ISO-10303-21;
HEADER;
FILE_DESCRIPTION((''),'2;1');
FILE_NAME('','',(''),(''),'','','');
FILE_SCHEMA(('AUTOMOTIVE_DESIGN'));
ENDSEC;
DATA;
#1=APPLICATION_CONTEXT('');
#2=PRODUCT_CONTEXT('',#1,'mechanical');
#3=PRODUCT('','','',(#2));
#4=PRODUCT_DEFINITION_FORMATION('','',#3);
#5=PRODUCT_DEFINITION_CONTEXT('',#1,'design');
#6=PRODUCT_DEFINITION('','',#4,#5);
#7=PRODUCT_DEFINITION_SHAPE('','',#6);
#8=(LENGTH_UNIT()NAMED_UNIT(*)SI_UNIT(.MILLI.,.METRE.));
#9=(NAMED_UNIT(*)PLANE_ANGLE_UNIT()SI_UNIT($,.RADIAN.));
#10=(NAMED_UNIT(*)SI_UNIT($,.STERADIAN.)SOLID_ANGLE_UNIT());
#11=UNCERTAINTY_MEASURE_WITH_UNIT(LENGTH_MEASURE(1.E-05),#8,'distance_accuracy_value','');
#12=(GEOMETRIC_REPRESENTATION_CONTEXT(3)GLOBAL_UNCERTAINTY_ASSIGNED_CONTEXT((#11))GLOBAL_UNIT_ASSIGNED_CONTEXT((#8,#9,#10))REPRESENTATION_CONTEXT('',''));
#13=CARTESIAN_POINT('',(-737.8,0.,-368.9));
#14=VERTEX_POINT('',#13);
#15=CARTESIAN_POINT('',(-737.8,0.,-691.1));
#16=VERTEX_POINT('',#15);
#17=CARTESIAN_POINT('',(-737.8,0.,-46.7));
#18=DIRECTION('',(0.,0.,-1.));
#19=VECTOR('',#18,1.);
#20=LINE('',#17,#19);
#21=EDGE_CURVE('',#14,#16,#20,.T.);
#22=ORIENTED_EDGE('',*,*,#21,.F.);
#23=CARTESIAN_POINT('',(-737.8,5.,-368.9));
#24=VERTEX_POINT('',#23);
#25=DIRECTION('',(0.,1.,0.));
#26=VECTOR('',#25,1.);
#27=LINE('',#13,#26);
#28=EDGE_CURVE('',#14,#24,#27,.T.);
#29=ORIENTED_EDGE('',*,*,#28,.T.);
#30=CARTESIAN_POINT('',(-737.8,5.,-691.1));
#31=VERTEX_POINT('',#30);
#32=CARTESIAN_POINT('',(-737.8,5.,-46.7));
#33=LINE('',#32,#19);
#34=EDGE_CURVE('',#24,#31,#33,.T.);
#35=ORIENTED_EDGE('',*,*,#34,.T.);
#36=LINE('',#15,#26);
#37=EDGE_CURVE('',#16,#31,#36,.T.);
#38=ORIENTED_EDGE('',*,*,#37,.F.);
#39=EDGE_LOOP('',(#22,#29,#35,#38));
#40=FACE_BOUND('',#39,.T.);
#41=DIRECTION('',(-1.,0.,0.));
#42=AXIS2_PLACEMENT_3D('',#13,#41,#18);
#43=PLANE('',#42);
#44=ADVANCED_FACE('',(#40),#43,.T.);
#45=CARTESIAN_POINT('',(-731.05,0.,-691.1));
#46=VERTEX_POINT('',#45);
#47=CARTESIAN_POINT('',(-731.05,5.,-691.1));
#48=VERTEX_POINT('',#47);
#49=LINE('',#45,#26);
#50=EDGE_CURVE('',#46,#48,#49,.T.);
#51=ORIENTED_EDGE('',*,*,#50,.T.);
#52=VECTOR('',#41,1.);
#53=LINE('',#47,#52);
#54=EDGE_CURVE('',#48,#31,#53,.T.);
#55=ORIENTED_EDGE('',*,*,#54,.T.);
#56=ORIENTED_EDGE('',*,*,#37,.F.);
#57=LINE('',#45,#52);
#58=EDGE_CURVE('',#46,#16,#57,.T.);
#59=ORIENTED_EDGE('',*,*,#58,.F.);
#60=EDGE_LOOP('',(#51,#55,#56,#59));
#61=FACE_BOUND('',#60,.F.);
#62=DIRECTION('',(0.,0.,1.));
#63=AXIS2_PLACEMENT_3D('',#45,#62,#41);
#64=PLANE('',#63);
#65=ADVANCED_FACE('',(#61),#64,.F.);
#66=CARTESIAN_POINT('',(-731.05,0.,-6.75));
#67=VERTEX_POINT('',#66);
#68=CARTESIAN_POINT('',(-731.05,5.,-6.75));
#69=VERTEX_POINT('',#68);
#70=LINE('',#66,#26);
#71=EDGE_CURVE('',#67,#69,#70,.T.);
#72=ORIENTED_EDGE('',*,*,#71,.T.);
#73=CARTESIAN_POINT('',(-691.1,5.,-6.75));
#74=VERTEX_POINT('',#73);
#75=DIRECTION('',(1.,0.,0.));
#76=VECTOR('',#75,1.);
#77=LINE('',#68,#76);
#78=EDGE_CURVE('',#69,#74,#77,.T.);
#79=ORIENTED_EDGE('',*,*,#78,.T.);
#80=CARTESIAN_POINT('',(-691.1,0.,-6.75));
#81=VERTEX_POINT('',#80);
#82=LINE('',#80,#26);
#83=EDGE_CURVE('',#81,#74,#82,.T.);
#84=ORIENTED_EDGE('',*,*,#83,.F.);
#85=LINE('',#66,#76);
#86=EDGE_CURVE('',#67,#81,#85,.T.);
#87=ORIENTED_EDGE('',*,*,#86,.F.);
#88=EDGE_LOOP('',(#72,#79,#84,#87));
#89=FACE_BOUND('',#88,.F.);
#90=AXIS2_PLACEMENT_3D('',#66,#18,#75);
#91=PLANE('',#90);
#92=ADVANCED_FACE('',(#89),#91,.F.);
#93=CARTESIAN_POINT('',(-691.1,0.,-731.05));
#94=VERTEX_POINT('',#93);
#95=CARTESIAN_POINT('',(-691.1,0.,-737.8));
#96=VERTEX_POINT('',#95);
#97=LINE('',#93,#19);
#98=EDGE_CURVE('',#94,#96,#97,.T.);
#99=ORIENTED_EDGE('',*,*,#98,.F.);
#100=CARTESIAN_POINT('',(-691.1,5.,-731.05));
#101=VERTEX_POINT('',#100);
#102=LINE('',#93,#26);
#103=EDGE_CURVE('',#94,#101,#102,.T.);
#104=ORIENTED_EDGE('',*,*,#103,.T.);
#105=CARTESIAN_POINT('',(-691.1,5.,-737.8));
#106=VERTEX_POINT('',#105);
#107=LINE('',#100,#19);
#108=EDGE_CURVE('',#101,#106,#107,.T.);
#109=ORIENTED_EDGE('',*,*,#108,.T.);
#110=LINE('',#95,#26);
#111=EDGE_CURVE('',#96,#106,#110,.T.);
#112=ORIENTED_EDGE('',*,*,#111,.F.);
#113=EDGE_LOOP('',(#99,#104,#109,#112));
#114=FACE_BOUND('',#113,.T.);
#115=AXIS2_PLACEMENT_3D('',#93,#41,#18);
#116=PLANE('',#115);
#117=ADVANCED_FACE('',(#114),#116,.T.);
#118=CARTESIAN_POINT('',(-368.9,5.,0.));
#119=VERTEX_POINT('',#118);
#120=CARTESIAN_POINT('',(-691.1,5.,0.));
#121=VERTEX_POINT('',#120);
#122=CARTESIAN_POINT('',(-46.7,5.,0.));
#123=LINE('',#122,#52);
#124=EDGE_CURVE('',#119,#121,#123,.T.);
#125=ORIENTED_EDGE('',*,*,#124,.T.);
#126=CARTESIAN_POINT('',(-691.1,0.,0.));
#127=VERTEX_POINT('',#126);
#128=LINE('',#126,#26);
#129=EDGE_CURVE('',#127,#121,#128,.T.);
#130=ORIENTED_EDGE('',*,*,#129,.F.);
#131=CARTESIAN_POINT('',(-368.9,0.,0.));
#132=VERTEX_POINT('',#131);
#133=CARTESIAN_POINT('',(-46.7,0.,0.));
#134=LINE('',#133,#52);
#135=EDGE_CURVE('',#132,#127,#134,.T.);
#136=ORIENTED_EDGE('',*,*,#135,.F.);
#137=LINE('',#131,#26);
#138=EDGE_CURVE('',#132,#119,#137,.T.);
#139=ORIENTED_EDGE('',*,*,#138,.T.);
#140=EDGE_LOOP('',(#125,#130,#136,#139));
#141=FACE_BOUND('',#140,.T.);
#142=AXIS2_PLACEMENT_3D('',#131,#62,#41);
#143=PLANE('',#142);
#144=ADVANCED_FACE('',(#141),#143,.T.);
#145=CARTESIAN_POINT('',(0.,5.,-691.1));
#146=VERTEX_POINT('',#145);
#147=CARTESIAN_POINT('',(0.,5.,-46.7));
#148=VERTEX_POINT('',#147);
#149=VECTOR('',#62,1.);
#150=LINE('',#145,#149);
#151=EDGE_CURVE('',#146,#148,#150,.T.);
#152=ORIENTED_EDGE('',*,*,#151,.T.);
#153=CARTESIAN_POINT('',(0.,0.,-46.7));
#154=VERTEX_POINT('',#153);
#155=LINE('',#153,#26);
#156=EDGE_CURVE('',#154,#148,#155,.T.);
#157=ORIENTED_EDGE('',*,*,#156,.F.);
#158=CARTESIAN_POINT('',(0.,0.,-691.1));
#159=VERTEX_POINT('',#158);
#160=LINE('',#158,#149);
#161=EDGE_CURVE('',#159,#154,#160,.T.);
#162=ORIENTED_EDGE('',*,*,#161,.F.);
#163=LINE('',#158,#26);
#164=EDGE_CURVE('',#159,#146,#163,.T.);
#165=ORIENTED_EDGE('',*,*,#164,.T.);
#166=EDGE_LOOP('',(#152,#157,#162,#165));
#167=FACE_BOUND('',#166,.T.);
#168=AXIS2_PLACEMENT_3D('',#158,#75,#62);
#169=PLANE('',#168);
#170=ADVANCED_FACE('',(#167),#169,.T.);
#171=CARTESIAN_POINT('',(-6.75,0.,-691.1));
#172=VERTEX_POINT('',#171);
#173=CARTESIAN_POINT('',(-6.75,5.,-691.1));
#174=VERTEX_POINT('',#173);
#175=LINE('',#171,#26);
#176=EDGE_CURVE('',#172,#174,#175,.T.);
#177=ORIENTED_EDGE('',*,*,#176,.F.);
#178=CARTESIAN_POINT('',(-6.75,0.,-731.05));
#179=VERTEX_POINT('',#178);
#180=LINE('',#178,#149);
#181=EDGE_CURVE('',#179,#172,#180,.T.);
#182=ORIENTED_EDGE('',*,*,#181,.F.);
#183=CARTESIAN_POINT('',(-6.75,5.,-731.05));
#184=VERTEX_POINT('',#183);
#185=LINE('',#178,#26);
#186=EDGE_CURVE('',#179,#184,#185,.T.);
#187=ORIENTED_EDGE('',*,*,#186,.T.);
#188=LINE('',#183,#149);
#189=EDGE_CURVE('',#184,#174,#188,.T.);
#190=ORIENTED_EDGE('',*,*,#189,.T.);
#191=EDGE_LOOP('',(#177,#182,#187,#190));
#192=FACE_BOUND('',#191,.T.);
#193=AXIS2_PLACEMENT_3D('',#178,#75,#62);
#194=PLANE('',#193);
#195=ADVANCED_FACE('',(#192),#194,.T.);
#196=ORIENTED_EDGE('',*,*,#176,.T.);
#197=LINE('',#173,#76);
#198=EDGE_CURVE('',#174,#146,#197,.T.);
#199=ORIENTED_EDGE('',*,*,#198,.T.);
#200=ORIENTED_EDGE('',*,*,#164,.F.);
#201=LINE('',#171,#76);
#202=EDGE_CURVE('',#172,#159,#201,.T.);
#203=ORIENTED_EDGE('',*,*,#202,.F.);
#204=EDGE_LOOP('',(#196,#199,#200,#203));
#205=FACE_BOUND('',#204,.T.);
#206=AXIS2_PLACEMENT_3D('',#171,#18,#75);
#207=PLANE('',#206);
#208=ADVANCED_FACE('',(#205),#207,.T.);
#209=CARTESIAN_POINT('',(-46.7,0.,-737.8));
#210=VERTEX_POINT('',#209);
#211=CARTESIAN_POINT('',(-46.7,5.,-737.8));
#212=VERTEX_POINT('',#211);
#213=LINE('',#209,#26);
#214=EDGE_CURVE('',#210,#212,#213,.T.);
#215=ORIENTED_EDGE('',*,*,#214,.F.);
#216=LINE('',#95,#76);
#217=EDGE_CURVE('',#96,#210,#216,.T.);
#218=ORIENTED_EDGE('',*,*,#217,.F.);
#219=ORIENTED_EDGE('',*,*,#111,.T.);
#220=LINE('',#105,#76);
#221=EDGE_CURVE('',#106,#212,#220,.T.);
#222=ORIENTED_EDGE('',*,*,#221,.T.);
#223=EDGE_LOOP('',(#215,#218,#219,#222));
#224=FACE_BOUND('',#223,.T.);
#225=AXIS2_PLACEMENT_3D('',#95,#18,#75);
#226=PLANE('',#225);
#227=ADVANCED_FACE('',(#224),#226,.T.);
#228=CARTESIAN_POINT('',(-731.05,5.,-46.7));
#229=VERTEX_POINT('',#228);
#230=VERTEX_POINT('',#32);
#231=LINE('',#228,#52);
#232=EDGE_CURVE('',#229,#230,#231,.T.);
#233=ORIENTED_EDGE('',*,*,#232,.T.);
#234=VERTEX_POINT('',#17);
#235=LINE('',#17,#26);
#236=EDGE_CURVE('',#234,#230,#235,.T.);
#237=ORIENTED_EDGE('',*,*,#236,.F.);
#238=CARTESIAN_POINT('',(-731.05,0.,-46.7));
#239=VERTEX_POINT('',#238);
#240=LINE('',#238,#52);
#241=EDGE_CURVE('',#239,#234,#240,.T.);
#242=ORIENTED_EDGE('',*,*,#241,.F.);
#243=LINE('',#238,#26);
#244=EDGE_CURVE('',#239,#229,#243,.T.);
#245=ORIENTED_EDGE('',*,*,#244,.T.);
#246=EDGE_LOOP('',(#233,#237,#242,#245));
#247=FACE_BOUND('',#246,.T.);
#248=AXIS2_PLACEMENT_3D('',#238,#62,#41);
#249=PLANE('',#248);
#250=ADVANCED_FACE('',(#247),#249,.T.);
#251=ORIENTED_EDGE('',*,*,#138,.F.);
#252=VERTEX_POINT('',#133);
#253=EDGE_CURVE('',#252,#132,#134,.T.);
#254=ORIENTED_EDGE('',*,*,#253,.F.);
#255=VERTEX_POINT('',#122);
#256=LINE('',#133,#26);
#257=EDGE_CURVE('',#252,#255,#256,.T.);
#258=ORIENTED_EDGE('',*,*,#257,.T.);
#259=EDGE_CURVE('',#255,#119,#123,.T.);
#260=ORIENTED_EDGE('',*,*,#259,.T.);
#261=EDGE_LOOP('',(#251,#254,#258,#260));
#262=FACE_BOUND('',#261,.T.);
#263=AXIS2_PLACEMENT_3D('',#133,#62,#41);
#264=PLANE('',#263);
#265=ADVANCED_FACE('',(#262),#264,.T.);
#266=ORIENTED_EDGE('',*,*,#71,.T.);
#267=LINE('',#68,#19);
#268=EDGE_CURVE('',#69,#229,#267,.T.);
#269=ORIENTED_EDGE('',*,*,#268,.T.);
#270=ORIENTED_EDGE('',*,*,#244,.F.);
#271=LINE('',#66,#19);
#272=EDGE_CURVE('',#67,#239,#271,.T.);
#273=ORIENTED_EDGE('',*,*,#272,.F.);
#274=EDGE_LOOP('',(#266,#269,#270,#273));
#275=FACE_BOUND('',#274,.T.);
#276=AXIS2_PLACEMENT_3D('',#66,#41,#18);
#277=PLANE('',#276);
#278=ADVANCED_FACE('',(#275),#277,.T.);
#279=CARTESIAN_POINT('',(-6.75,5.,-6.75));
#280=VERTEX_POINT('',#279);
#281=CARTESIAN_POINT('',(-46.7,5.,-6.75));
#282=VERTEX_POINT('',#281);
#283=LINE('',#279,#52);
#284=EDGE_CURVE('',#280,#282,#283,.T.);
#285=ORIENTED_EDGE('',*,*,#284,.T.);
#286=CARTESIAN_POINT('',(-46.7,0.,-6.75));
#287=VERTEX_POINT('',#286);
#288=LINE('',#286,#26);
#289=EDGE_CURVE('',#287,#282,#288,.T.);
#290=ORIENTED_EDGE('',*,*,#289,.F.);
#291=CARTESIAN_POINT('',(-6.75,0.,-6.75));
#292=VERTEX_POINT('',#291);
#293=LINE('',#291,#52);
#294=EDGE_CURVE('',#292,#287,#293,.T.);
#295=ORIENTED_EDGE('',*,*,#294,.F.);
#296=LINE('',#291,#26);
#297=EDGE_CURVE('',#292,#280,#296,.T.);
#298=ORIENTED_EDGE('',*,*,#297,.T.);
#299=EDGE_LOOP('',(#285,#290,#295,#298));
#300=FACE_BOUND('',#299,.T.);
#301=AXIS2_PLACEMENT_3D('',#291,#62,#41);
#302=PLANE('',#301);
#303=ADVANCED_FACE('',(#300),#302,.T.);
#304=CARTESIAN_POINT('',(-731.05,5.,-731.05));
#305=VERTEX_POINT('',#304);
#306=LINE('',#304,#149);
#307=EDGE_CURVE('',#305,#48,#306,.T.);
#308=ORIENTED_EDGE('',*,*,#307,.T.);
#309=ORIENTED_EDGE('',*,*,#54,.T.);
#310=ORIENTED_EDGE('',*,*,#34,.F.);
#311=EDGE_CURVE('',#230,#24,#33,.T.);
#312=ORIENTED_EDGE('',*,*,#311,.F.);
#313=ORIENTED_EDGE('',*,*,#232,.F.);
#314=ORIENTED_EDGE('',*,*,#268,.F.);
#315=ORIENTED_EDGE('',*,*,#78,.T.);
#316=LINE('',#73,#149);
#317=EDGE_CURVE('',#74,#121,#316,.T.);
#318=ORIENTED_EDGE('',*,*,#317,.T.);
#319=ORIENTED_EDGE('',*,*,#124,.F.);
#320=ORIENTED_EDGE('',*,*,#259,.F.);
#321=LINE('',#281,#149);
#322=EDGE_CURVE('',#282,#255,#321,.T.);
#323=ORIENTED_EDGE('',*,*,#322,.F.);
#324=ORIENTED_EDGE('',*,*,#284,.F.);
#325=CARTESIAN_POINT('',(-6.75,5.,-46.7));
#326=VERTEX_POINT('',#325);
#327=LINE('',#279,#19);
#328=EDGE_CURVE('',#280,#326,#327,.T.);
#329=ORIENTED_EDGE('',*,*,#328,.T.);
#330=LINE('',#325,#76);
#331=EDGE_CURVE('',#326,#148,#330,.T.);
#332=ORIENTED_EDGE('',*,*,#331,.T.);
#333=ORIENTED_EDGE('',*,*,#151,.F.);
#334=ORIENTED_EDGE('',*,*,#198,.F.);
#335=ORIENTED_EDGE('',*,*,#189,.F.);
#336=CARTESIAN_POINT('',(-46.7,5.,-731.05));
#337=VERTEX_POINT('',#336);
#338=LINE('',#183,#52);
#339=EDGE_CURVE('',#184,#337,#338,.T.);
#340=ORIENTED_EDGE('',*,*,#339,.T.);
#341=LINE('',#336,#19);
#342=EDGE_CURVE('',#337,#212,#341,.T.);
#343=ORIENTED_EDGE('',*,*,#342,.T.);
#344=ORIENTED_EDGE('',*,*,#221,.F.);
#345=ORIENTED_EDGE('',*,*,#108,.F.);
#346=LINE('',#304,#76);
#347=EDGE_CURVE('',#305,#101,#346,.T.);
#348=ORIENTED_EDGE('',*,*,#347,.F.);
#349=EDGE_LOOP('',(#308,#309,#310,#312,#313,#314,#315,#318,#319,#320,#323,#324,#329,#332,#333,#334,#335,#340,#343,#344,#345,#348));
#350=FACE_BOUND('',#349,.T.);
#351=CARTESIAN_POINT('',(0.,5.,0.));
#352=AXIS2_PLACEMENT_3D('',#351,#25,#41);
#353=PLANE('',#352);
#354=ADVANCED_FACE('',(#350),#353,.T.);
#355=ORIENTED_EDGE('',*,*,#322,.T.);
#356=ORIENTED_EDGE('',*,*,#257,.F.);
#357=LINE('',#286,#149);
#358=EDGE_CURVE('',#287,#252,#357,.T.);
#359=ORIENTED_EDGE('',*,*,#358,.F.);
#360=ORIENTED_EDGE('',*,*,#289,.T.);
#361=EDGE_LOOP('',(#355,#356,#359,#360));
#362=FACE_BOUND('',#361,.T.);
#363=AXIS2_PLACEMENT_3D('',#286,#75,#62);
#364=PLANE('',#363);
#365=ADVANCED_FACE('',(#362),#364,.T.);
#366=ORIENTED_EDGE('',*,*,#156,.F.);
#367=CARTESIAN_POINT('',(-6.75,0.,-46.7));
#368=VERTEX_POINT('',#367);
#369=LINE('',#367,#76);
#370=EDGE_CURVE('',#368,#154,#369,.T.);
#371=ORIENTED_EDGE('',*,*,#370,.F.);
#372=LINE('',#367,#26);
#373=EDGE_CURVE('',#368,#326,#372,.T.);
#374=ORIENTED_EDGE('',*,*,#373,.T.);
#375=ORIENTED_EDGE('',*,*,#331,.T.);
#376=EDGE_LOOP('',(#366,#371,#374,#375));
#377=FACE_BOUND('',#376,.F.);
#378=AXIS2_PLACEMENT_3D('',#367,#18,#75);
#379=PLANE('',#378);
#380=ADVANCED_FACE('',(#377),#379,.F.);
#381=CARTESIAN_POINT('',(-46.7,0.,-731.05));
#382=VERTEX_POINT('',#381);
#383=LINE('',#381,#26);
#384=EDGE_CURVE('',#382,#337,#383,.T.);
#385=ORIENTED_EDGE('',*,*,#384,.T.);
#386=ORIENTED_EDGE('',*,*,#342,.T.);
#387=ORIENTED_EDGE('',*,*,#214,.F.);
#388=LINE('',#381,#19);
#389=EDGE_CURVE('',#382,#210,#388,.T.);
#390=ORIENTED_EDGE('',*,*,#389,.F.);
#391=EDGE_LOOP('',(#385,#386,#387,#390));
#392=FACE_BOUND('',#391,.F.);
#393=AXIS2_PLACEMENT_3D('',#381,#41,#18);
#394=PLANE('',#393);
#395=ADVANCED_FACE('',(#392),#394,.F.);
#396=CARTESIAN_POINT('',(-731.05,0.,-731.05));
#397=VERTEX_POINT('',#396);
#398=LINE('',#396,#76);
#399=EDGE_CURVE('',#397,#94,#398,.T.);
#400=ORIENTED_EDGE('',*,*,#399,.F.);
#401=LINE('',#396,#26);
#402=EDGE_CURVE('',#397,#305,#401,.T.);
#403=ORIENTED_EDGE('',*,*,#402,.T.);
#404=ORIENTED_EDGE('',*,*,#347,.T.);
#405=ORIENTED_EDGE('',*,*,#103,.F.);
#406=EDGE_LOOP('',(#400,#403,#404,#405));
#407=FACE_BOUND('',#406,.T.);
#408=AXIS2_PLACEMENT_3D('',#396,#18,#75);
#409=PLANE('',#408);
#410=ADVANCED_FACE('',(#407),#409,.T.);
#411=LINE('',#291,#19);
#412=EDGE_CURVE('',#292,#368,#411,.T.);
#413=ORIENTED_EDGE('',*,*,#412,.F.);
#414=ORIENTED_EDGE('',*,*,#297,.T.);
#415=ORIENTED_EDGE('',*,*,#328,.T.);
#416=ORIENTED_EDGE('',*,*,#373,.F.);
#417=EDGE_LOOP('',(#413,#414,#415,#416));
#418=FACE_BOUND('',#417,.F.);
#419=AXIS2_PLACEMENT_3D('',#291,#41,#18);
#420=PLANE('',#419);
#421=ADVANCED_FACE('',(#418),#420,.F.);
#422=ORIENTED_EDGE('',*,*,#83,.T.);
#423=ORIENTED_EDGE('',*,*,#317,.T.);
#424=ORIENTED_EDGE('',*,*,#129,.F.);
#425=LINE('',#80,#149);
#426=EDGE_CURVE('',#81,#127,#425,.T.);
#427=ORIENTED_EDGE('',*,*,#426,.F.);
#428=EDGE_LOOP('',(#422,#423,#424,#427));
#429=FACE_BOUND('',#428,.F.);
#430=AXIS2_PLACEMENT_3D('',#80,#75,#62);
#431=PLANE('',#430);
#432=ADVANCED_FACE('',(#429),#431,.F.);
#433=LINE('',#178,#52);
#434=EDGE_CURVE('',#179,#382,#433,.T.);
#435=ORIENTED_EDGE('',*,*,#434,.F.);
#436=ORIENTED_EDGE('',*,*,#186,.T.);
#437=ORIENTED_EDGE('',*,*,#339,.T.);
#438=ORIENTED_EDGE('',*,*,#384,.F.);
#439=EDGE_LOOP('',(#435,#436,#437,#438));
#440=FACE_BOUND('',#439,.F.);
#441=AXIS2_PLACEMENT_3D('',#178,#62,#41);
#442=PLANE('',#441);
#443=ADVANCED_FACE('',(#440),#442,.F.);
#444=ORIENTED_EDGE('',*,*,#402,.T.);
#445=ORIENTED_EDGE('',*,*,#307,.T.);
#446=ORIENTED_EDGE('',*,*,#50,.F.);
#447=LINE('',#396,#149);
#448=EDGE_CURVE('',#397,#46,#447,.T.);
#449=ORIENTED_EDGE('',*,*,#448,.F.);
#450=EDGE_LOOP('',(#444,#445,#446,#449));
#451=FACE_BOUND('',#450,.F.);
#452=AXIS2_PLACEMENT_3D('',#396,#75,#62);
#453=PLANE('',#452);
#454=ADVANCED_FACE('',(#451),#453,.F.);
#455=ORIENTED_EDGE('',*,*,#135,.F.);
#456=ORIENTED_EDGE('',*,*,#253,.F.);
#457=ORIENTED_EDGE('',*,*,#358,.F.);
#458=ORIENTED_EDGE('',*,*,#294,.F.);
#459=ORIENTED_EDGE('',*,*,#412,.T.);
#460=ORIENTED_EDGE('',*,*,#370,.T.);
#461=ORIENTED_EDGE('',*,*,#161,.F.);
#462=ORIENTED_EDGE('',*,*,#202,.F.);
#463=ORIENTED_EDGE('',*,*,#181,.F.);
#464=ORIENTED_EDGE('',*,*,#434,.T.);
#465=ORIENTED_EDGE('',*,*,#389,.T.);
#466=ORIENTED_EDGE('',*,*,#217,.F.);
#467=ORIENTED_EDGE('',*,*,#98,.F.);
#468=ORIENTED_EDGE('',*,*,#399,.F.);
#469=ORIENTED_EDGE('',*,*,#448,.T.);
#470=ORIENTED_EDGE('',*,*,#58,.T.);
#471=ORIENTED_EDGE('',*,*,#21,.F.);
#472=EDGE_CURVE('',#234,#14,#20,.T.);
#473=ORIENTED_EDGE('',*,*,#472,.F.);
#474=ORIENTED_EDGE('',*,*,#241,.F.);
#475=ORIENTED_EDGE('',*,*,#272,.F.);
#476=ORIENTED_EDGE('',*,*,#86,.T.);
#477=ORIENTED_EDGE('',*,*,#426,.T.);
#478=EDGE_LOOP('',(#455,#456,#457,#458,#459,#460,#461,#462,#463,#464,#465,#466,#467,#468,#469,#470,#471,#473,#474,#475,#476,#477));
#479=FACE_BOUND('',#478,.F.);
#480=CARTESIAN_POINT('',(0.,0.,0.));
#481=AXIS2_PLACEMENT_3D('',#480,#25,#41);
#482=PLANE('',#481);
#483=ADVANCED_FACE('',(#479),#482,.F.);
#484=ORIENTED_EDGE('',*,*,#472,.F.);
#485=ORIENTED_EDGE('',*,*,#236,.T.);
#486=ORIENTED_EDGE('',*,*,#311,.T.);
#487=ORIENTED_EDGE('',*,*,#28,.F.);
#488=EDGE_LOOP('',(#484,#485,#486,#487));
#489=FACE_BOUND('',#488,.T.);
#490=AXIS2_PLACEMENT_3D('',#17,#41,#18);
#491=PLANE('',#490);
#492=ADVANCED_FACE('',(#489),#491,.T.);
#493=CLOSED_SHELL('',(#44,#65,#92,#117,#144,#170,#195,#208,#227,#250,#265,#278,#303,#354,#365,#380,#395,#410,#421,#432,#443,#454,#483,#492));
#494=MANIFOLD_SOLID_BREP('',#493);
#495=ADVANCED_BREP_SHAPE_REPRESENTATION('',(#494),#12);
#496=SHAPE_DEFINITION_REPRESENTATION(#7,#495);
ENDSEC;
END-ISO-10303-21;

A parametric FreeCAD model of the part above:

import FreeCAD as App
import Part
import Sketcher

V = App.Vector


def add_polygon(sketch, points):
    """Adds a closed chain of lines whose ends are joined by coincident constraints."""
    first, n = sketch.GeometryCount, len(points)
    for a, b in zip(points, points[1:] + points[:1]):
        sketch.addGeometry(Part.LineSegment(App.Vector(*a, 0), App.Vector(*b, 0)), False)
    for i in range(n):
        sketch.addConstraint(Sketcher.Constraint("Coincident", first + i, 2, first + (i + 1) % n, 1))

doc = App.newDocument("Part")
body = doc.addObject("PartDesign::Body", "Body")

# Sketch on XZ plane
sketch1 = body.newObject("Sketcher::SketchObject", "Sketch")
sketch1.AttachmentSupport = (doc.getObject("XZ_Plane"), [""])
sketch1.MapMode = "FlatFace"
add_polygon(sketch1, [(-691.1, 0), (-46.7, 0), (-46.7, -6.75), (-6.75, -6.75), (-6.75, -46.7), (0, -46.7), (0, -691.1), (-6.75, -691.1), (-6.75, -731.05), (-46.7, -731.05), (-46.7, -737.8), (-691.1, -737.8), (-691.1, -731.05), (-731.05, -731.05), (-731.05, -691.1), (-737.8, -691.1), (-737.8, -46.7), (-731.05, -46.7), (-731.05, -6.75), (-691.1, -6.75)])  # lines 0-19
sketch1.addConstraint([
    Sketcher.Constraint("Horizontal", 0),
    Sketcher.Constraint("Vertical", 1),
    Sketcher.Constraint("Horizontal", 2),
    Sketcher.Constraint("Vertical", 3),
    Sketcher.Constraint("Horizontal", 4),
    Sketcher.Constraint("Vertical", 5),
    Sketcher.Constraint("Horizontal", 6),
    Sketcher.Constraint("Vertical", 7),
    Sketcher.Constraint("Horizontal", 8),
    Sketcher.Constraint("Vertical", 9),
    Sketcher.Constraint("Horizontal", 10),
    Sketcher.Constraint("Vertical", 11),
    Sketcher.Constraint("Horizontal", 12),
    Sketcher.Constraint("Vertical", 13),
    Sketcher.Constraint("Horizontal", 14),
    Sketcher.Constraint("Vertical", 15),
    Sketcher.Constraint("Horizontal", 16),
    Sketcher.Constraint("Vertical", 17),
    Sketcher.Constraint("Horizontal", 18),
    Sketcher.Constraint("Vertical", 19),
    Sketcher.Constraint("PointOnObject", 0, 2, -1),
    Sketcher.Constraint("PointOnObject", 4, 2, -2),
    Sketcher.Constraint("Horizontal", 8, 2, 11, 2),
    Sketcher.Constraint("Horizontal", 6, 2, 13, 2),
    Sketcher.Constraint("Horizontal", 4, 2, 15, 2),
    Sketcher.Constraint("Horizontal", 2, 2, 17, 2),
    Sketcher.Constraint("Vertical", 3, 2, 6, 2),
    Sketcher.Constraint("Vertical", 1, 2, 8, 2),
    Sketcher.Constraint("Vertical", 13, 2, 16, 2),
    Sketcher.Constraint("Vertical", 11, 2, 18, 2),
    Sketcher.Constraint("Equal", 8, 12),
    Sketcher.Constraint("Equal", 6, 14),
    Sketcher.Constraint("Equal", 16, 1),
    Sketcher.Constraint("Equal", 18, 3),
    Sketcher.Constraint("Equal", 10, 5),
    Sketcher.Constraint("Equal", 3, 7),
    Sketcher.Constraint("Equal", 1, 9),
    Sketcher.Constraint("DistanceX", 4, 1, 4, 2, 6.75),
    Sketcher.Constraint("DistanceX", 0, 2, -1, 1, 46.7),
    Sketcher.Constraint("DistanceY", 9, 2, -1, 1, 737.8),
])
pad1 = body.newObject("PartDesign::Pad", "Pad")
pad1.Profile = sketch1
pad1.Length = 5
pad1.Reversed = True

doc.recompute()
